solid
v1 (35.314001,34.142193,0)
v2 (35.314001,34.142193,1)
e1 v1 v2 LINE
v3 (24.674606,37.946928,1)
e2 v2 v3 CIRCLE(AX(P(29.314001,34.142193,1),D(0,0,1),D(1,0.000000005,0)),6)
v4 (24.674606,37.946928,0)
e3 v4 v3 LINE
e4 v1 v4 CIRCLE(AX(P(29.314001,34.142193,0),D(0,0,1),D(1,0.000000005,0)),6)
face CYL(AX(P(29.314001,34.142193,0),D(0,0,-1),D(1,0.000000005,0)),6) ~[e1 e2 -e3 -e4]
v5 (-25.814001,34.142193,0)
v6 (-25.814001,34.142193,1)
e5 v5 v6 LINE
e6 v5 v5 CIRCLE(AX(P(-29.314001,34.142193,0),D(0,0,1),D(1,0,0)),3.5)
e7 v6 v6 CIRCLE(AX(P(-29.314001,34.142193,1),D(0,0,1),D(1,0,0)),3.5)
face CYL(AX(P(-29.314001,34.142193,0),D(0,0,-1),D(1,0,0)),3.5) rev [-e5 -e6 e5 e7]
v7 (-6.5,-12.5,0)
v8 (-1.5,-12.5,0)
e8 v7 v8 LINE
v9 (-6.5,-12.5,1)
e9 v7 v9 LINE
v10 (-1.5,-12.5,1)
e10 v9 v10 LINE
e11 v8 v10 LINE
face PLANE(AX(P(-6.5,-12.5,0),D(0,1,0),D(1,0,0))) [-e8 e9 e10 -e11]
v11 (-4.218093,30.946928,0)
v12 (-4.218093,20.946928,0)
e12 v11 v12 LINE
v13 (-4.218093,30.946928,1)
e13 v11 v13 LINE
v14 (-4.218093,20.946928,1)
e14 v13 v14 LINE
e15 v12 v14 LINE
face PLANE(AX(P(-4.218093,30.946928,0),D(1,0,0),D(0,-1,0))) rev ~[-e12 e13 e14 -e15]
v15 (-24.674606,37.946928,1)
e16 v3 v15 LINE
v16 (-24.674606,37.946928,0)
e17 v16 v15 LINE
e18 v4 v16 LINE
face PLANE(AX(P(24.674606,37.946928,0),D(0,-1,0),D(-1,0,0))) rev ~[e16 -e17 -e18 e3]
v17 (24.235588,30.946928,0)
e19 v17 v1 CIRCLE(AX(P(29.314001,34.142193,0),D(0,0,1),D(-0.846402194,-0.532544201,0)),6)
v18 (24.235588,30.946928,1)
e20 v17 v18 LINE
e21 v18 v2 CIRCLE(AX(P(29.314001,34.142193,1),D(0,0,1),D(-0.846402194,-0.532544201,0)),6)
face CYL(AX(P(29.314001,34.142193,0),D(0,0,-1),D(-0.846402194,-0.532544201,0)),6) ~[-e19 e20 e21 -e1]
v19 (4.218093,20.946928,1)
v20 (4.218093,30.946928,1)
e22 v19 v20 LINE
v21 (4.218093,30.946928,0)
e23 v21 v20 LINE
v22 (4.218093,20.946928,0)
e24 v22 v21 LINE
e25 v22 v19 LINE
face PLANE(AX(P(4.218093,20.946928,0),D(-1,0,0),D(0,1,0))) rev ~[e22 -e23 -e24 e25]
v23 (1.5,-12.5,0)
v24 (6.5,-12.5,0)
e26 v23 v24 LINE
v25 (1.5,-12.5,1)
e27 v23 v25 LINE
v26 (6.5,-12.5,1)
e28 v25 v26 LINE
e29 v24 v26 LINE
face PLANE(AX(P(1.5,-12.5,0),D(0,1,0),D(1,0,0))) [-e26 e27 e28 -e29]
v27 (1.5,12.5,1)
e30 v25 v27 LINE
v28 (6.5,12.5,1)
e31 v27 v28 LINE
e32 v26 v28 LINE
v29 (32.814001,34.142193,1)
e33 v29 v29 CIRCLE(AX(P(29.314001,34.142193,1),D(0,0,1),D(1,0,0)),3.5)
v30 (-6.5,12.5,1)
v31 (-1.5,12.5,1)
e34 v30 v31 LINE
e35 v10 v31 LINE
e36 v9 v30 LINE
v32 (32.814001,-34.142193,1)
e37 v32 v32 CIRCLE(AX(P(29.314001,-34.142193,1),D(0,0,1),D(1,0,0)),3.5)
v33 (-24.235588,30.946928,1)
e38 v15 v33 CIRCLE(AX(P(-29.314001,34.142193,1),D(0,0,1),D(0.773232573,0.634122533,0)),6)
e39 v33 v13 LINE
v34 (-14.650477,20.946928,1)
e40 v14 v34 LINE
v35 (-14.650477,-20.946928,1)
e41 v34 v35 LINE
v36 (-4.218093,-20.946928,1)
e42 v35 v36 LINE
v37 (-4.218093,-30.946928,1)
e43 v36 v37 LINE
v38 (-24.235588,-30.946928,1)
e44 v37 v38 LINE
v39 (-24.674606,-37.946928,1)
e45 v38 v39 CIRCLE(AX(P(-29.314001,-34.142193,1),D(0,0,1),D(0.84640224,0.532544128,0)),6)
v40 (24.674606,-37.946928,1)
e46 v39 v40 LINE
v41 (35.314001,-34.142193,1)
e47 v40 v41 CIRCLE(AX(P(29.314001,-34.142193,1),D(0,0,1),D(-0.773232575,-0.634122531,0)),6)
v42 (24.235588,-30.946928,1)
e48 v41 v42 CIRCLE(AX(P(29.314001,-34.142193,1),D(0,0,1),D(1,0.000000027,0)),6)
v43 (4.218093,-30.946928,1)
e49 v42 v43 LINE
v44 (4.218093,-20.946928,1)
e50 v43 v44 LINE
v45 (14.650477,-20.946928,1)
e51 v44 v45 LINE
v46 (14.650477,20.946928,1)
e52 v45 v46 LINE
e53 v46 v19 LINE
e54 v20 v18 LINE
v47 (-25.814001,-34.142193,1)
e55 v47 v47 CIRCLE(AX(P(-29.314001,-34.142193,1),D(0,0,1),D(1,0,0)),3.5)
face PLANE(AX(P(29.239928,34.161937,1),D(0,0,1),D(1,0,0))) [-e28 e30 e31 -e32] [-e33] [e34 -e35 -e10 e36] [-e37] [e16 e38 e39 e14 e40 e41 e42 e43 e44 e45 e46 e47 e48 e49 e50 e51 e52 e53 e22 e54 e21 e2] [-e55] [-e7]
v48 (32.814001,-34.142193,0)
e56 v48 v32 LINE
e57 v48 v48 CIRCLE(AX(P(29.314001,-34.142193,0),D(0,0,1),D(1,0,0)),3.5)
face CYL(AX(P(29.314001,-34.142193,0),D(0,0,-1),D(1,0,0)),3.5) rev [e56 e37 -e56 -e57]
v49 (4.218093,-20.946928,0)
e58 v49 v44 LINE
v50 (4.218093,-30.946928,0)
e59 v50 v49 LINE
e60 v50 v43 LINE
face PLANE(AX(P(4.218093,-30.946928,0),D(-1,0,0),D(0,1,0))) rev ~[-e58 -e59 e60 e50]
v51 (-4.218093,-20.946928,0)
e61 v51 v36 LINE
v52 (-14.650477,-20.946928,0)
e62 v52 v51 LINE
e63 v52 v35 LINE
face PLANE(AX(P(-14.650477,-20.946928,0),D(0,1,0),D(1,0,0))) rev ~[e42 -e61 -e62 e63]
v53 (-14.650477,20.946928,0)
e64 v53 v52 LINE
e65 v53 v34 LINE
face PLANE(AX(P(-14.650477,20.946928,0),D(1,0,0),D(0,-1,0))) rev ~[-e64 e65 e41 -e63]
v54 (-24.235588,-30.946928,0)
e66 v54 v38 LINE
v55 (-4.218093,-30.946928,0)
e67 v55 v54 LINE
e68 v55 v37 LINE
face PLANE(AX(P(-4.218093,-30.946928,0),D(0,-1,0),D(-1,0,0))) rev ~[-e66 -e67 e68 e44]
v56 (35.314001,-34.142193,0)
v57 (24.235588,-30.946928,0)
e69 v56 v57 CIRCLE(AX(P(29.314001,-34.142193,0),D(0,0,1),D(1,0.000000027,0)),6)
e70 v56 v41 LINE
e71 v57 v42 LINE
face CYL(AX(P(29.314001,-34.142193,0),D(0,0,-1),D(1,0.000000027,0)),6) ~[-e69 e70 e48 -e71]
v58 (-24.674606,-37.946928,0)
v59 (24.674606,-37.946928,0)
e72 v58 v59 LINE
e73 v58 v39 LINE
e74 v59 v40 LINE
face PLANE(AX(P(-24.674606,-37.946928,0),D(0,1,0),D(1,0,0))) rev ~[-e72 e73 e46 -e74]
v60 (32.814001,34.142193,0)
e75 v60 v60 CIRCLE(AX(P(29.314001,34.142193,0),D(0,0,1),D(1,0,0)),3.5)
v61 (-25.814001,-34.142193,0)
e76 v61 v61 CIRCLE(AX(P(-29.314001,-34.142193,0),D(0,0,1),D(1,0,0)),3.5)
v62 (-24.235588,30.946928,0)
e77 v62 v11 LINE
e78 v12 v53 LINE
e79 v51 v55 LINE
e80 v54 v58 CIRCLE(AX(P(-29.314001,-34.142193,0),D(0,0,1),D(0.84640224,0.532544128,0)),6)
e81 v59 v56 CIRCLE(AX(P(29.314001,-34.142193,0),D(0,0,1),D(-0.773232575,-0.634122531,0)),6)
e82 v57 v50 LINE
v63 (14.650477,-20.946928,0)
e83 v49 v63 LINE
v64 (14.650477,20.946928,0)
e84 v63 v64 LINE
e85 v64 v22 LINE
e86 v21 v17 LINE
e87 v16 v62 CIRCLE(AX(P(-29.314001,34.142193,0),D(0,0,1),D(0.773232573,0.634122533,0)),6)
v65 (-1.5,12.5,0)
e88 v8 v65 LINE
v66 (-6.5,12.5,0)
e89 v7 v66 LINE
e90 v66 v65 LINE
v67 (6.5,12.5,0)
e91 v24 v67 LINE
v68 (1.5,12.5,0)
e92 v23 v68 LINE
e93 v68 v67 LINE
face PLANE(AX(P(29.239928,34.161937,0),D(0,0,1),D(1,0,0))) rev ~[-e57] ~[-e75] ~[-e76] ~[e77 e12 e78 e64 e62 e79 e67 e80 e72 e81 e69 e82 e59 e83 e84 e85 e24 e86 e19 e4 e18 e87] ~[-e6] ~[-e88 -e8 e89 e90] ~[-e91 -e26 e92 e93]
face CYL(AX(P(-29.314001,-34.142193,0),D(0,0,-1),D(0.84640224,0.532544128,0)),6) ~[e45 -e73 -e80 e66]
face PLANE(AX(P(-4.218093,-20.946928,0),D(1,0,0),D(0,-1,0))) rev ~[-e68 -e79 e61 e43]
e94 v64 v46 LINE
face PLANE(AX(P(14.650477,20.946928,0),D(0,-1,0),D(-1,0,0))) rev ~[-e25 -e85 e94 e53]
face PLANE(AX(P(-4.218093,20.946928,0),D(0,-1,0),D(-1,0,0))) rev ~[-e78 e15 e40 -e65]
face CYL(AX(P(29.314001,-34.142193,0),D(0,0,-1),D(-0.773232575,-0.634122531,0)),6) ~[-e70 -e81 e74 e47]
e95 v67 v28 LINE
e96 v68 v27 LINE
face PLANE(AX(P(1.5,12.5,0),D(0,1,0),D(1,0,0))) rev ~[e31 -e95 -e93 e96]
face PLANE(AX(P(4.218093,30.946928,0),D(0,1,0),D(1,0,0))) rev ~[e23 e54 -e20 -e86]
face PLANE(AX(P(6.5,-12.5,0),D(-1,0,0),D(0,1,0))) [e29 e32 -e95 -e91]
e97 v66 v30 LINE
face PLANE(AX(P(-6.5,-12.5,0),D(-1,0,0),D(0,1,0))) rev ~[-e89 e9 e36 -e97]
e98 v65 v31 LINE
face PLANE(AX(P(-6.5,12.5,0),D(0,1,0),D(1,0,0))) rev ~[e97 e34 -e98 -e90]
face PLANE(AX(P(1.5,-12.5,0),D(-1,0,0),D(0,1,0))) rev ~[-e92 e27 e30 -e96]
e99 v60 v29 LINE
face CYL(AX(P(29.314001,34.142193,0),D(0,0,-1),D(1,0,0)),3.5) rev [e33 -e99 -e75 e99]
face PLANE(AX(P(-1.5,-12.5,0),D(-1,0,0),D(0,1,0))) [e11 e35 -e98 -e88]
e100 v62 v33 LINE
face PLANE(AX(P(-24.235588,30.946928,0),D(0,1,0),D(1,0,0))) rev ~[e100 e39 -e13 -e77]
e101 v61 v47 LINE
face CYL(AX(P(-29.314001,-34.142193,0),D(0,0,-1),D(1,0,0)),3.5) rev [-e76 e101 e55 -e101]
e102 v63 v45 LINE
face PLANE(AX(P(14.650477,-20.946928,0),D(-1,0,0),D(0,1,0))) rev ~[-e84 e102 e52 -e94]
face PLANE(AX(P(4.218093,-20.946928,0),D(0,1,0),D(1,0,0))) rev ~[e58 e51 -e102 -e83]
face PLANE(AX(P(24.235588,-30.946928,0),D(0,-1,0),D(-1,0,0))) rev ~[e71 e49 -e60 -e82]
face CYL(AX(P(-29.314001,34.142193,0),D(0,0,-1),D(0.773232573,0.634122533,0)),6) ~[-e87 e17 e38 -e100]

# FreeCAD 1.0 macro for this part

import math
import FreeCAD as App
import Part
import Sketcher

V = App.Vector

doc = App.newDocument("Part")
body = doc.addObject("PartDesign::Body", "Body")

sketch1 = body.newObject("Sketcher::SketchObject", "Sketch")
sketch1.AttachmentSupport = (doc.getObject("XY_Plane"), [""])
sketch1.MapMode = "FlatFace"
sketch1.addGeometry(Part.ArcOfCircle(Part.Circle(V(29.314001, 34.142193, 0), V(0, 0, 1), 6), math.radians(-147.822482), math.radians(-0.000002)), False)
sketch1.addGeometry(Part.ArcOfCircle(Part.Circle(V(29.314001, 34.142193, 0), V(0, 0, 1), 6), math.radians(0), math.radians(140.645065)), False)
sketch1.addGeometry(Part.LineSegment(V(24.674606, 37.946928, 0), V(-24.674606, 37.946928, 0)), False)
sketch1.addGeometry(Part.ArcOfCircle(Part.Circle(V(-29.314001, 34.142193, 0), V(0, 0, 1), 6), math.radians(39.354935), math.radians(327.822487)), False)
sketch1.addGeometry(Part.LineSegment(V(-24.235588, 30.946928, 0), V(-4.218093, 30.946928, 0)), False)
sketch1.addGeometry(Part.LineSegment(V(-4.218093, 30.946928, 0), V(-4.218093, 20.946928, 0)), False)
sketch1.addGeometry(Part.LineSegment(V(-4.218093, 20.946928, 0), V(-14.650477, 20.946928, 0)), False)
sketch1.addGeometry(Part.LineSegment(V(-14.650477, 20.946928, 0), V(-14.650477, -20.946928, 0)), False)
sketch1.addGeometry(Part.LineSegment(V(-14.650477, -20.946928, 0), V(-4.218093, -20.946928, 0)), False)
sketch1.addGeometry(Part.LineSegment(V(-4.218093, -20.946928, 0), V(-4.218093, -30.946928, 0)), False)
sketch1.addGeometry(Part.LineSegment(V(-4.218093, -30.946928, 0), V(-24.235588, -30.946928, 0)), False)
sketch1.addGeometry(Part.ArcOfCircle(Part.Circle(V(-29.314001, -34.142193, 0), V(0, 0, 1), 6), math.radians(32.177513), math.radians(320.645065)), False)
sketch1.addGeometry(Part.LineSegment(V(-24.674606, -37.946928, 0), V(24.674606, -37.946928, 0)), False)
sketch1.addGeometry(Part.ArcOfCircle(Part.Circle(V(29.314001, -34.142193, 0), V(0, 0, 1), 6), math.radians(-140.645065), math.radians(0)), False)
sketch1.addGeometry(Part.ArcOfCircle(Part.Circle(V(29.314001, -34.142193, 0), V(0, 0, 1), 6), math.radians(0.000002), math.radians(147.822482)), False)
sketch1.addGeometry(Part.LineSegment(V(24.235588, -30.946928, 0), V(4.218093, -30.946928, 0)), False)
sketch1.addGeometry(Part.LineSegment(V(4.218093, -30.946928, 0), V(4.218093, -20.946928, 0)), False)
sketch1.addGeometry(Part.LineSegment(V(4.218093, -20.946928, 0), V(14.650477, -20.946928, 0)), False)
sketch1.addGeometry(Part.LineSegment(V(14.650477, -20.946928, 0), V(14.650477, 20.946928, 0)), False)
sketch1.addGeometry(Part.LineSegment(V(14.650477, 20.946928, 0), V(4.218093, 20.946928, 0)), False)
sketch1.addGeometry(Part.LineSegment(V(4.218093, 20.946928, 0), V(4.218093, 30.946928, 0)), False)
sketch1.addGeometry(Part.LineSegment(V(4.218093, 30.946928, 0), V(24.235588, 30.946928, 0)), False)
sketch1.addGeometry(Part.Circle(V(-29.314001, -34.142193, 0), V(0, 0, 1), 3.5), False)
sketch1.addGeometry(Part.Circle(V(29.314001, -34.142193, 0), V(0, 0, 1), 3.5), False)
sketch1.addGeometry(Part.LineSegment(V(-1.5, -12.5, 0), V(-6.5, -12.5, 0)), False)
sketch1.addGeometry(Part.LineSegment(V(-6.5, -12.5, 0), V(-6.5, 12.5, 0)), False)
sketch1.addGeometry(Part.LineSegment(V(-6.5, 12.5, 0), V(-1.5, 12.5, 0)), False)
sketch1.addGeometry(Part.LineSegment(V(-1.5, 12.5, 0), V(-1.5, -12.5, 0)), False)
sketch1.addGeometry(Part.Circle(V(-29.314001, 34.142193, 0), V(0, 0, 1), 3.5), False)
sketch1.addGeometry(Part.LineSegment(V(6.5, -12.5, 0), V(1.5, -12.5, 0)), False)
sketch1.addGeometry(Part.LineSegment(V(1.5, -12.5, 0), V(1.5, 12.5, 0)), False)
sketch1.addGeometry(Part.LineSegment(V(1.5, 12.5, 0), V(6.5, 12.5, 0)), False)
sketch1.addGeometry(Part.LineSegment(V(6.5, 12.5, 0), V(6.5, -12.5, 0)), False)
sketch1.addGeometry(Part.Circle(V(29.314001, 34.142193, 0), V(0, 0, 1), 3.5), False)
sketch1.addConstraint(Sketcher.Constraint("Tangent", 0, 2, 1, 1))
sketch1.addConstraint(Sketcher.Constraint("Coincident", 1, 2, 2, 1))
sketch1.addConstraint(Sketcher.Constraint("Coincident", 2, 2, 3, 1))
sketch1.addConstraint(Sketcher.Constraint("Coincident", 3, 2, 4, 1))
sketch1.addConstraint(Sketcher.Constraint("Coincident", 4, 2, 5, 1))
sketch1.addConstraint(Sketcher.Constraint("Coincident", 5, 2, 6, 1))
sketch1.addConstraint(Sketcher.Constraint("Coincident", 6, 2, 7, 1))
sketch1.addConstraint(Sketcher.Constraint("Coincident", 7, 2, 8, 1))
sketch1.addConstraint(Sketcher.Constraint("Coincident", 8, 2, 9, 1))
sketch1.addConstraint(Sketcher.Constraint("Coincident", 9, 2, 10, 1))
sketch1.addConstraint(Sketcher.Constraint("Coincident", 10, 2, 11, 1))
sketch1.addConstraint(Sketcher.Constraint("Coincident", 11, 2, 12, 1))
sketch1.addConstraint(Sketcher.Constraint("Coincident", 12, 2, 13, 1))
sketch1.addConstraint(Sketcher.Constraint("Tangent", 13, 2, 14, 1))
sketch1.addConstraint(Sketcher.Constraint("Coincident", 14, 2, 15, 1))
sketch1.addConstraint(Sketcher.Constraint("Coincident", 15, 2, 16, 1))
sketch1.addConstraint(Sketcher.Constraint("Coincident", 16, 2, 17, 1))
sketch1.addConstraint(Sketcher.Constraint("Coincident", 17, 2, 18, 1))
sketch1.addConstraint(Sketcher.Constraint("Coincident", 18, 2, 19, 1))
sketch1.addConstraint(Sketcher.Constraint("Coincident", 19, 2, 20, 1))
sketch1.addConstraint(Sketcher.Constraint("Coincident", 20, 2, 21, 1))
sketch1.addConstraint(Sketcher.Constraint("Coincident", 21, 2, 0, 1))
sketch1.addConstraint(Sketcher.Constraint("Coincident", 24, 2, 25, 1))
sketch1.addConstraint(Sketcher.Constraint("Coincident", 25, 2, 26, 1))
sketch1.addConstraint(Sketcher.Constraint("Coincident", 26, 2, 27, 1))
sketch1.addConstraint(Sketcher.Constraint("Coincident", 27, 2, 24, 1))
sketch1.addConstraint(Sketcher.Constraint("Coincident", 29, 2, 30, 1))
sketch1.addConstraint(Sketcher.Constraint("Coincident", 30, 2, 31, 1))
sketch1.addConstraint(Sketcher.Constraint("Coincident", 31, 2, 32, 1))
sketch1.addConstraint(Sketcher.Constraint("Coincident", 32, 2, 29, 1))
sketch1.addConstraint(Sketcher.Constraint("Horizontal", 2))
sketch1.addConstraint(Sketcher.Constraint("Horizontal", 4))
sketch1.addConstraint(Sketcher.Constraint("Vertical", 5))
sketch1.addConstraint(Sketcher.Constraint("Horizontal", 6))
sketch1.addConstraint(Sketcher.Constraint("Vertical", 7))
sketch1.addConstraint(Sketcher.Constraint("Horizontal", 8))
sketch1.addConstraint(Sketcher.Constraint("Vertical", 9))
sketch1.addConstraint(Sketcher.Constraint("Horizontal", 10))
sketch1.addConstraint(Sketcher.Constraint("Horizontal", 12))
sketch1.addConstraint(Sketcher.Constraint("Horizontal", 15))
sketch1.addConstraint(Sketcher.Constraint("Vertical", 16))
sketch1.addConstraint(Sketcher.Constraint("Horizontal", 17))
sketch1.addConstraint(Sketcher.Constraint("Vertical", 18))
sketch1.addConstraint(Sketcher.Constraint("Horizontal", 19))
sketch1.addConstraint(Sketcher.Constraint("Vertical", 20))
sketch1.addConstraint(Sketcher.Constraint("Horizontal", 21))
sketch1.addConstraint(Sketcher.Constraint("Horizontal", 24))
sketch1.addConstraint(Sketcher.Constraint("Vertical", 25))
sketch1.addConstraint(Sketcher.Constraint("Horizontal", 26))
sketch1.addConstraint(Sketcher.Constraint("Vertical", 27))
sketch1.addConstraint(Sketcher.Constraint("Horizontal", 29))
sketch1.addConstraint(Sketcher.Constraint("Vertical", 30))
sketch1.addConstraint(Sketcher.Constraint("Horizontal", 31))
sketch1.addConstraint(Sketcher.Constraint("Vertical", 32))
sketch1.addConstraint(Sketcher.Constraint("Coincident", 22, 3, 11, 3))
sketch1.addConstraint(Sketcher.Constraint("Coincident", 23, 3, 13, 3))
sketch1.addConstraint(Sketcher.Constraint("Coincident", 28, 3, 3, 3))
sketch1.addConstraint(Sketcher.Constraint("Coincident", 33, 3, 0, 3))
sketch1.addConstraint(Sketcher.Constraint("Equal", 0, 1))
sketch1.addConstraint(Sketcher.Constraint("Equal", 1, 3))
sketch1.addConstraint(Sketcher.Constraint("Equal", 3, 11))
sketch1.addConstraint(Sketcher.Constraint("Equal", 11, 13))
sketch1.addConstraint(Sketcher.Constraint("Equal", 13, 14))
sketch1.addConstraint(Sketcher.Constraint("Equal", 22, 23))
sketch1.addConstraint(Sketcher.Constraint("Equal", 23, 28))
sketch1.addConstraint(Sketcher.Constraint("Equal", 28, 33))
sketch1.addConstraint(Sketcher.Constraint("Symmetric", 0, 3, 11, 3, -1, 1))
sketch1.addConstraint(Sketcher.Constraint("Symmetric", 3, 3, 13, 3, -1, 1))
sketch1.addConstraint(Sketcher.Constraint("Symmetric", 4, 2, 15, 2, -1, 1))
sketch1.addConstraint(Sketcher.Constraint("Symmetric", 6, 2, 17, 2, -1, 1))
sketch1.addConstraint(Sketcher.Constraint("Symmetric", 8, 2, 19, 2, -1, 1))
sketch1.addConstraint(Sketcher.Constraint("Symmetric", 26, 2, 29, 2, -1, 1))
sketch1.addConstraint(Sketcher.Constraint("Symmetric", 24, 2, 31, 2, -1, 1))
sketch1.addConstraint(Sketcher.Constraint("Symmetric", 0, 3, 3, 3, -2))
sketch1.addConstraint(Sketcher.Constraint("Symmetric", 9, 2, 15, 2, -2))
sketch1.addConstraint(Sketcher.Constraint("Horizontal", 33, 3, 0, 2))
sketch1.addConstraint(Sketcher.Constraint("Horizontal", 23, 3, 13, 2))
sketch1.addConstraint(Sketcher.Constraint("Horizontal", 8, 2, 16, 2))
sketch1.addConstraint(Sketcher.Constraint("Horizontal", 4, 2, 20, 2))
sketch1.addConstraint(Sketcher.Constraint("Horizontal", 27, 2, 29, 2))
sketch1.addConstraint(Sketcher.Constraint("Vertical", 2, 2, 11, 2))
sketch1.addConstraint(Sketcher.Constraint("Diameter", 22, 7.0))
sketch1.addConstraint(Sketcher.Constraint("Radius", 0, 6.0))
sketch1.addConstraint(Sketcher.Constraint("DistanceX", 24, 2, 24, 1, 5.0))
sketch1.addConstraint(Sketcher.Constraint("DistanceY", 5, 2, 5, 1, 10.0))
sketch1.addConstraint(Sketcher.Constraint("DistanceY", 25, 1, 25, 2, 25.0))
sketch1.addConstraint(Sketcher.Constraint("DistanceY", 3, 2, 2, 2, 7.0))
sketch1.addConstraint(Sketcher.Constraint("DistanceX", 27, 2, 29, 2, 3.0))
sketch1.addConstraint(Sketcher.Constraint("DistanceX", -1, 1, 0, 3, 29.314001))
sketch1.addConstraint(Sketcher.Constraint("DistanceX", 4, 2, 1, 2, 28.892699))
sketch1.addConstraint(Sketcher.Constraint("DistanceX", 2, 2, 2, 1, 49.349212))
sketch1.addConstraint(Sketcher.Constraint("DistanceX", 6, 2, 6, 1, 10.432384))
sketch1.addConstraint(Sketcher.Constraint("DistanceY", 7, 2, 7, 1, 41.893856))
pad1 = body.newObject("PartDesign::Pad", "Pad")
pad1.Profile = sketch1
pad1.Length = 1

doc.recompute()
